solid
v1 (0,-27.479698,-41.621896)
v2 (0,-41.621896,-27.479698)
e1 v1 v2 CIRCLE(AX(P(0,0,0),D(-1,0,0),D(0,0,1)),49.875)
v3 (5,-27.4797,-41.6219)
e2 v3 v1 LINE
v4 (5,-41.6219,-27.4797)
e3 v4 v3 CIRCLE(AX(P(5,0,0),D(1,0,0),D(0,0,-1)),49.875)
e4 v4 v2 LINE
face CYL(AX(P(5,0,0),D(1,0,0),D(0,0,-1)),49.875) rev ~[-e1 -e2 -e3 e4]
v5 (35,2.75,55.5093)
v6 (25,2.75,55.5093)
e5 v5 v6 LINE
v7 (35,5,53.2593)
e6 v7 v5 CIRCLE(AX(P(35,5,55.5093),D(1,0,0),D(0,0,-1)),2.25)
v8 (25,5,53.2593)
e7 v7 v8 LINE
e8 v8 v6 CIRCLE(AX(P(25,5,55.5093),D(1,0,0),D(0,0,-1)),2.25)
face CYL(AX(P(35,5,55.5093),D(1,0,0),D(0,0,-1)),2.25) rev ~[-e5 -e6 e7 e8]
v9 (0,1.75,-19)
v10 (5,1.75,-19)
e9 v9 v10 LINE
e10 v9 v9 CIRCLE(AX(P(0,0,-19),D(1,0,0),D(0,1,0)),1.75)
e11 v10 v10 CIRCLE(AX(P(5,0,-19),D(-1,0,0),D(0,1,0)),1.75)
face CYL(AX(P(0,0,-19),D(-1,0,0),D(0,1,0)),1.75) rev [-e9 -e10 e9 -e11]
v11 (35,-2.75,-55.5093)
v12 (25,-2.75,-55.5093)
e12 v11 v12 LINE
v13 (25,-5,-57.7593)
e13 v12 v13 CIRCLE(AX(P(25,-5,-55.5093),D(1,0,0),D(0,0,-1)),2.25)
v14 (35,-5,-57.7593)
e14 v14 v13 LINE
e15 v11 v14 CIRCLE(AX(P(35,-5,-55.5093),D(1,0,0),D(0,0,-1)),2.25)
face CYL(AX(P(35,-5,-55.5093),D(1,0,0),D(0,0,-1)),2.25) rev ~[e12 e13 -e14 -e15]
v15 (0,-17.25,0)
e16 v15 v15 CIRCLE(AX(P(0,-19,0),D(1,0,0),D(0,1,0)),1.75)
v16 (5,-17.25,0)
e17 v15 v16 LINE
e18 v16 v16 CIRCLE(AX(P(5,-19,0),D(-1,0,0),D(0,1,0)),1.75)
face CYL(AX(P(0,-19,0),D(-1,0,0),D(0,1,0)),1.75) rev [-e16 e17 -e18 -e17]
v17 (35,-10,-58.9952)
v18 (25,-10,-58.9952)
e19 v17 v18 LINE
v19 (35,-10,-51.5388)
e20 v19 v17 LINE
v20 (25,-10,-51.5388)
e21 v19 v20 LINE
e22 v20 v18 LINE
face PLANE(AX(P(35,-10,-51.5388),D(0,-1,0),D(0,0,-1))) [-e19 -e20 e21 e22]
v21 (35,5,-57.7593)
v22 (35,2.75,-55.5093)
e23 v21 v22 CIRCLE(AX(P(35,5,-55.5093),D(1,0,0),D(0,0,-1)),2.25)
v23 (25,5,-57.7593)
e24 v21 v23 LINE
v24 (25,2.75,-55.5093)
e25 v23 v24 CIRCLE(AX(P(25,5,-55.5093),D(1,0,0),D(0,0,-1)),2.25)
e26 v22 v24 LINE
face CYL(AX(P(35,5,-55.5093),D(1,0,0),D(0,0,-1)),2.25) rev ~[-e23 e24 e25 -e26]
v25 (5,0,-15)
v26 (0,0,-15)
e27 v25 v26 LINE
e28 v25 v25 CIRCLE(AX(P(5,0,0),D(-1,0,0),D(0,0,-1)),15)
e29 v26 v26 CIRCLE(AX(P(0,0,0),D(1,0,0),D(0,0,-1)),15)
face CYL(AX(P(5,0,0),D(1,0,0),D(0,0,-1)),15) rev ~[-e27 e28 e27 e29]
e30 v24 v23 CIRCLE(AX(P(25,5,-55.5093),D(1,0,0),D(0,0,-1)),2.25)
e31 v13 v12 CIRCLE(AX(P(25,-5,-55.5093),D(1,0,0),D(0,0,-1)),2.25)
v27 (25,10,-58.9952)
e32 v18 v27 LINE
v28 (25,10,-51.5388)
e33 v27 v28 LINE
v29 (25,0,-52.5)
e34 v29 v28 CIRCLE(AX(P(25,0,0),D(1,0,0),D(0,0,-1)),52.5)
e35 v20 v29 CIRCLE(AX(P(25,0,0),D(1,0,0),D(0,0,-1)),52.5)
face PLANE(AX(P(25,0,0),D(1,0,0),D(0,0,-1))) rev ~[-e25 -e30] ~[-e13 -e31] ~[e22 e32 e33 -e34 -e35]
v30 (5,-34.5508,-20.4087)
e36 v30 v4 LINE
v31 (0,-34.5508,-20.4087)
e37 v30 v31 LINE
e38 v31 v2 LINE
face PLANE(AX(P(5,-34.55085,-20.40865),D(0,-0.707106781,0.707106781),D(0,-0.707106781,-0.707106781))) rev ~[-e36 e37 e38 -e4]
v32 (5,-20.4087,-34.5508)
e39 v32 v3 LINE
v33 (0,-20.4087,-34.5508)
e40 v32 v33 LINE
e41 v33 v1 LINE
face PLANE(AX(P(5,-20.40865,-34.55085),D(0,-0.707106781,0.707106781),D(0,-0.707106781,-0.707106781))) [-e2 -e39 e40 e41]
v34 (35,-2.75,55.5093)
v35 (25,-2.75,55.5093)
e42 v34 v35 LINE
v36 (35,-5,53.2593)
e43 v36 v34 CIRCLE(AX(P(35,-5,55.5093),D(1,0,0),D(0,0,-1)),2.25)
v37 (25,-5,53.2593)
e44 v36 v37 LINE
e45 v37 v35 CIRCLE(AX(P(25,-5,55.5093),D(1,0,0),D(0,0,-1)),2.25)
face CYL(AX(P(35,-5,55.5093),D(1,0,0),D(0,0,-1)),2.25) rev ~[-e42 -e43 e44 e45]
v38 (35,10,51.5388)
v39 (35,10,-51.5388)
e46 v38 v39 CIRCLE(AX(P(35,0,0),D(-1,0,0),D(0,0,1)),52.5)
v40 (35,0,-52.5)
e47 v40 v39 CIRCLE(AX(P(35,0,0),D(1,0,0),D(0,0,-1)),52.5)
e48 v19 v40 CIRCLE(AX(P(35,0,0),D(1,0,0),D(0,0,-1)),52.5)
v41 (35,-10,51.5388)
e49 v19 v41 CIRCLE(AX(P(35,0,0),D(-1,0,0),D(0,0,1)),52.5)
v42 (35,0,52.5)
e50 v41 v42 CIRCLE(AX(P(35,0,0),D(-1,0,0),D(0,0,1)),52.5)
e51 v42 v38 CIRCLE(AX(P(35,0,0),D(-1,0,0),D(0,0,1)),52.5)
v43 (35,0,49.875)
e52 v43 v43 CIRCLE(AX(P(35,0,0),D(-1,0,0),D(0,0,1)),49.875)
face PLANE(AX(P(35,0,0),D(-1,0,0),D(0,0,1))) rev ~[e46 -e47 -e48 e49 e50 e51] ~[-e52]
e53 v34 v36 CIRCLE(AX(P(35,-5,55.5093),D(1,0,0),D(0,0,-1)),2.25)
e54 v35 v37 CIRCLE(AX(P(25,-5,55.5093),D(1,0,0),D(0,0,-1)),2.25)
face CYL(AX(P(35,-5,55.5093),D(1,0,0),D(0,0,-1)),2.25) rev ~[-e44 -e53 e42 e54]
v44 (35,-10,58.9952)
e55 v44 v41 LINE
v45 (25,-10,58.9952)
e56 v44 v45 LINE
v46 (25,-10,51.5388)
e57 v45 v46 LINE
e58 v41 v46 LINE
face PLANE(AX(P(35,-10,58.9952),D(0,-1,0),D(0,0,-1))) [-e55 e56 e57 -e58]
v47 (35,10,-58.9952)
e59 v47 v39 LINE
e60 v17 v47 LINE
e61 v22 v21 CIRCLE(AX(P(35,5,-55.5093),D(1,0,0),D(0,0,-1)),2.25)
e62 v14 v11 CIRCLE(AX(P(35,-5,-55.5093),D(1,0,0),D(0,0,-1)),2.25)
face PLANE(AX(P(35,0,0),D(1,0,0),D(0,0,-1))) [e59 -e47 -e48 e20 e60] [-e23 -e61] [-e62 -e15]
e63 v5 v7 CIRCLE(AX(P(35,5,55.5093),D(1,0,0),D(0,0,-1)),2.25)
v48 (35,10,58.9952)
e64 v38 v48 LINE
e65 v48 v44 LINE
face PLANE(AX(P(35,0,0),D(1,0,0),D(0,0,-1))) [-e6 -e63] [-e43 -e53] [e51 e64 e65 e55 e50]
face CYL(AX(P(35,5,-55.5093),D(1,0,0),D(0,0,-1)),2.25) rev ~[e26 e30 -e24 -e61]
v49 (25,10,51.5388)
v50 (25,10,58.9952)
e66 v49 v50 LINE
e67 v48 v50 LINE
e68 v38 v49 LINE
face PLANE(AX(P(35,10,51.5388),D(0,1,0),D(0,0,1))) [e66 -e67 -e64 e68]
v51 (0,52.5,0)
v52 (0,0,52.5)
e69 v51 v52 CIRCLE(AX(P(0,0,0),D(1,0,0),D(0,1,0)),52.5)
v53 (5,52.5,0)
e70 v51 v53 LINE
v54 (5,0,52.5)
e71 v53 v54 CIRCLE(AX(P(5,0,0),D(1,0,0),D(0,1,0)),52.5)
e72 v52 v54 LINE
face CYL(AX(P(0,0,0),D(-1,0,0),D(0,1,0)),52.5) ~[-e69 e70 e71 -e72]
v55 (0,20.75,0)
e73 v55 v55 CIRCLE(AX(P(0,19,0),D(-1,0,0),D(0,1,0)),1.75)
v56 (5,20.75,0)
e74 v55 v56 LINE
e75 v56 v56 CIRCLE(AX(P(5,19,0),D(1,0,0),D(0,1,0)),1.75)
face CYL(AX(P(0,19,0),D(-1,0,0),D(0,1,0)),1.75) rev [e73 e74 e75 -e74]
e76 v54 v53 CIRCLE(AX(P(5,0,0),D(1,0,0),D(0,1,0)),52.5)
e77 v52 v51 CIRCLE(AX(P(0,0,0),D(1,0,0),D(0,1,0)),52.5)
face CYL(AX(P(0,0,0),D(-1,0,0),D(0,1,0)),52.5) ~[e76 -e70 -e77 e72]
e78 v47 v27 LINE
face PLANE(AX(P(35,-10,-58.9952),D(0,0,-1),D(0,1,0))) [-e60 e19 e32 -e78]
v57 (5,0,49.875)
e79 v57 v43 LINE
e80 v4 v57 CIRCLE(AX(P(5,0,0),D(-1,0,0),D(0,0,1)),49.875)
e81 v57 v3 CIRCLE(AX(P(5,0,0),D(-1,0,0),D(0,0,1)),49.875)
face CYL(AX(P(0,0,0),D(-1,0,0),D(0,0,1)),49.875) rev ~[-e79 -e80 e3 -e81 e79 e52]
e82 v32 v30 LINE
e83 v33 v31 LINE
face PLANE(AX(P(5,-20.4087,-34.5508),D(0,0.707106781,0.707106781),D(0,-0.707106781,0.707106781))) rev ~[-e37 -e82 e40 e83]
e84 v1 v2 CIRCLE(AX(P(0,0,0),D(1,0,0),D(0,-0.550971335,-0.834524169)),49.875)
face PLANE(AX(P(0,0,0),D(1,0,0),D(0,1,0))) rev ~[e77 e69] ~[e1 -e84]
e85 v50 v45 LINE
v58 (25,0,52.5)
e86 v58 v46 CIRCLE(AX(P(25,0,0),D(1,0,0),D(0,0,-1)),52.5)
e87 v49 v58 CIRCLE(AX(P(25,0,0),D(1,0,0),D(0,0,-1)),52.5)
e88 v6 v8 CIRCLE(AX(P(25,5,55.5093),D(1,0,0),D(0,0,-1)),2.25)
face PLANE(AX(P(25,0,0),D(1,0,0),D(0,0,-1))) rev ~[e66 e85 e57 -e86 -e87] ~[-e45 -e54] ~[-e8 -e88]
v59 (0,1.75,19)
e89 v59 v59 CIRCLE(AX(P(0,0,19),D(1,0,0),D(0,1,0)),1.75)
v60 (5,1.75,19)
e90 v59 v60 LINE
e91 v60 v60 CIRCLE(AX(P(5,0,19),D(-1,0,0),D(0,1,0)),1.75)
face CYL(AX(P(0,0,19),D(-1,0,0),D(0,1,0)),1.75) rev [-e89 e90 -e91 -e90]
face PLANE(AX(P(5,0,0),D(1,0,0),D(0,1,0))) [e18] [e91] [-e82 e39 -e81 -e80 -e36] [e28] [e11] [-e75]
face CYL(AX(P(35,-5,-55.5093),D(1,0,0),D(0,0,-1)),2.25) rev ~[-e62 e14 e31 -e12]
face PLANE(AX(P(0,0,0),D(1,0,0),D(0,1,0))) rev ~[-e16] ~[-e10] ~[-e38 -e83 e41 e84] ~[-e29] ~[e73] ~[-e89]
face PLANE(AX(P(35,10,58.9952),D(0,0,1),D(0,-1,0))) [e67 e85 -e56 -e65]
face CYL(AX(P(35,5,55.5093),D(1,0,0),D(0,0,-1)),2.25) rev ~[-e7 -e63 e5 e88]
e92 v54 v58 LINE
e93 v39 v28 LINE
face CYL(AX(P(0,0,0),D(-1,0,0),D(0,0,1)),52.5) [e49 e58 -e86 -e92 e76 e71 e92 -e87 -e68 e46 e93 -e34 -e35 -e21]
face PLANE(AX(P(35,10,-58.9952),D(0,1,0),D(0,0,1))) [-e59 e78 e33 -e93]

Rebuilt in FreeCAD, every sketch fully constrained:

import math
import FreeCAD as App
import Part
import Sketcher
from FreeCAD import Vector
Q = App.Units.Quantity

doc = App.newDocument("Part")
body = doc.addObject("PartDesign::Body", "Body")

# Sketch on YZ plane
sketch1 = body.newObject("Sketcher::SketchObject", "Sketch")
sketch1.AttachmentSupport = (doc.getObject("YZ_Plane"), [""])
sketch1.MapMode = "FlatFace"
sketch1.addGeometry([
    Part.Circle(Vector(0, 0, 0), Vector(0, 0, 1), 52.5),  # 0
    Part.Circle(Vector(19, 0, 0), Vector(0, 0, 1), 1.8),  # 1
    Part.Circle(Vector(0, -19, 0), Vector(0, 0, 1), 1.8),  # 2
    Part.Circle(Vector(-19, 0, 0), Vector(0, 0, 1), 1.8),  # 3
    Part.Circle(Vector(0, 19, 0), Vector(0, 0, 1), 1.8),  # 4
], False)
sketch1.addConstraint([
    Sketcher.Constraint("Coincident", 0, 3, -1, 1),
    Sketcher.Constraint("Equal", 1, 2),
    Sketcher.Constraint("Equal", 2, 3),
    Sketcher.Constraint("Equal", 3, 4),
    Sketcher.Constraint("Symmetric", 1, 3, 3, 3, -1, 1),
    Sketcher.Constraint("Symmetric", 2, 3, 4, 3, -1, 1),
    Sketcher.Constraint("PointOnObject", 1, 3, -1),
    Sketcher.Constraint("PointOnObject", 2, 3, -2),
    Sketcher.Constraint("Diameter", 0, Q("105 mm")),
    Sketcher.Constraint("Diameter", 1, Q("3.5 mm")),
    Sketcher.Constraint("DistanceX", 3, 3, 1, 3, Q("38 mm")),
    Sketcher.Constraint("DistanceY", 2, 3, 4, 3, Q("38 mm")),
])
pad1 = body.newObject("PartDesign::Pad", "Pad")
pad1.Profile = sketch1
pad1.Length = 5

# Sketch on YZ plane
sketch2 = body.newObject("Sketcher::SketchObject", "Sketch001")
sketch2.AttachmentSupport = (doc.getObject("YZ_Plane"), [""])
sketch2.MapMode = "FlatFace"
sketch2.addGeometry([
    Part.Circle(Vector(0, 0, 0), Vector(0, 0, 1), 52),
    Part.Circle(Vector(0, 0, 0), Vector(0, 0, 1), 50),
], False)
sketch2.addConstraint([
    Sketcher.Constraint("Coincident", 0, 3, -1, 1),
    Sketcher.Constraint("Coincident", 1, 3, -1, 1),
    Sketcher.Constraint("Diameter", 0, Q("105 mm")),
    Sketcher.Constraint("Diameter", 1, Q("99.75 mm")),
])
pad2 = body.newObject("PartDesign::Pad", "Pad001")
pad2.Profile = sketch2
pad2.Length = 35

# Sketch on YZ plane
sketch3 = body.newObject("Sketcher::SketchObject", "Sketch002")
sketch3.AttachmentSupport = (doc.getObject("YZ_Plane"), [""])
sketch3.MapMode = "FlatFace"
sketch3.AttachmentOffset = App.Placement(Vector(0, 0, 35), App.Rotation())
sketch3.addGeometry([
    Part.ArcOfCircle(Part.Circle(Vector(0, 0, 0), Vector(0, 0, 1), 52.5), math.radians(-90), math.radians(-79.02)),  # 0
    Part.ArcOfCircle(Part.Circle(Vector(0, 0, 0), Vector(0, 0, 1), 52.5), math.radians(-100.98), math.radians(-90)),  # 1
    Part.LineSegment(Vector(-10, -51.5, 0), Vector(-10, -59, 0)),  # 2
    Part.LineSegment(Vector(-10, -59, 0), Vector(10, -59, 0)),  # 3
    Part.LineSegment(Vector(10, -59, 0), Vector(10, -51.5, 0)),  # 4
    Part.Circle(Vector(-5, -55.5, 0), Vector(0, 0, 1), 2.2),  # 5
    Part.Circle(Vector(5, -55.5, 0), Vector(0, 0, 1), 2.2),  # 6
    Part.ArcOfCircle(Part.Circle(Vector(0, 0, 0), Vector(0, 0, 1), 52.5), math.radians(79.02), math.radians(90)),  # 7
    Part.LineSegment(Vector(10, 51.5, 0), Vector(10, 59, 0)),  # 8
    Part.LineSegment(Vector(10, 59, 0), Vector(-10, 59, 0)),  # 9
    Part.LineSegment(Vector(-10, 59, 0), Vector(-10, 51.5, 0)),  # 10
    Part.ArcOfCircle(Part.Circle(Vector(0, 0, 0), Vector(0, 0, 1), 52.5), math.radians(90), math.radians(100.98)),  # 11
    Part.Circle(Vector(-5, 55.5, 0), Vector(0, 0, 1), 2.2),  # 12
    Part.Circle(Vector(5, 55.5, 0), Vector(0, 0, 1), 2.2),  # 13
], False)
sketch3.addConstraint([
    Sketcher.Constraint("Tangent", 0, 1, 1, 2),
    Sketcher.Constraint("Coincident", 1, 1, 2, 1),
    Sketcher.Constraint("Coincident", 2, 2, 3, 1),
    Sketcher.Constraint("Coincident", 3, 2, 4, 1),
    Sketcher.Constraint("Coincident", 4, 2, 0, 2),
    Sketcher.Constraint("Coincident", 7, 1, 8, 1),
    Sketcher.Constraint("Coincident", 8, 2, 9, 1),
    Sketcher.Constraint("Coincident", 9, 2, 10, 1),
    Sketcher.Constraint("Coincident", 10, 2, 11, 2),
    Sketcher.Constraint("Tangent", 11, 1, 7, 2),
    Sketcher.Constraint("Vertical", 2),
    Sketcher.Constraint("Horizontal", 3),
    Sketcher.Constraint("Vertical", 4),
    Sketcher.Constraint("Vertical", 8),
    Sketcher.Constraint("Horizontal", 9),
    Sketcher.Constraint("Vertical", 10),
    Sketcher.Constraint("Coincident", 0, 3, -1, 1),
    Sketcher.Constraint("Coincident", 7, 3, -1, 1),
    Sketcher.Constraint("Equal", 0, 1),
    Sketcher.Constraint("Equal", 5, 6),
    Sketcher.Constraint("Equal", 1, 7),
    Sketcher.Constraint("Equal", 7, 11),
    Sketcher.Constraint("Equal", 6, 12),
    Sketcher.Constraint("Equal", 12, 13),
    Sketcher.Constraint("Symmetric", 6, 3, 12, 3, -1, 1),
    Sketcher.Constraint("Symmetric", 5, 3, 13, 3, -1, 1),
    Sketcher.Constraint("Symmetric", 2, 2, 8, 2, -1, 1),
    Sketcher.Constraint("Symmetric", 5, 3, 6, 3, -2),
    Sketcher.Constraint("PointOnObject", 0, 1, -2),
    Sketcher.Constraint("PointOnObject", 11, 1, -2),
    Sketcher.Constraint("Horizontal", 1, 1, 4, 2),
    Sketcher.Constraint("Horizontal", 7, 1, 10, 2),
    Sketcher.Constraint("Diameter", 5, Q("4.5 mm")),
    Sketcher.Constraint("Radius", 0, Q("52.5 mm")),
    Sketcher.Constraint("DistanceX", 3, 1, 3, 2, Q("20 mm")),
    Sketcher.Constraint("DistanceX", 5, 3, -1, 1, Q("5 mm")),
    Sketcher.Constraint("DistanceY", 2, 2, 2, 1, Q("7.4564 mm")),
    Sketcher.Constraint("DistanceY", 2, 2, 5, 3, Q("3.486 mm")),
])
pad3 = body.newObject("PartDesign::Pad", "Pad002")
pad3.Profile = sketch3
pad3.Length = 10
pad3.Reversed = True

# Sketch on YZ plane
sketch4 = body.newObject("Sketcher::SketchObject", "Sketch003")
sketch4.AttachmentSupport = (doc.getObject("YZ_Plane"), [""])
sketch4.MapMode = "FlatFace"
sketch4.AttachmentOffset = App.Placement(Vector(0, 0, 5), App.Rotation())
sketch4.addGeometry([
    Part.Circle(Vector(0, 0, 0), Vector(0, 0, 1), 15),  # 0
    Part.LineSegment(Vector(-20, -35, 0), Vector(-35, -20, 0)),  # 1
    Part.LineSegment(Vector(-35, -20, 0), Vector(-42, -27, 0)),  # 2
    Part.ArcOfCircle(Part.Circle(Vector(0, 0, 0), Vector(0, 0, 1), 50), math.radians(-147), math.radians(-123)),  # 3
    Part.LineSegment(Vector(-27, -42, 0), Vector(-20, -35, 0)),  # 4
], False)
sketch4.addConstraint([
    Sketcher.Constraint("Coincident", 1, 2, 2, 1),
    Sketcher.Constraint("Coincident", 2, 2, 3, 1),
    Sketcher.Constraint("Coincident", 3, 2, 4, 1),
    Sketcher.Constraint("Coincident", 4, 2, 1, 1),
    Sketcher.Constraint("Coincident", 0, 3, -1, 1),
    Sketcher.Constraint("Coincident", 3, 3, -1, 1),
    Sketcher.Constraint("Perpendicular", 1, 2),
    Sketcher.Constraint("Parallel", 2, 4),
    Sketcher.Constraint("Equal", 2, 4),
    Sketcher.Constraint("Diameter", 0, Q("30 mm")),
    Sketcher.Constraint("Angle", 4, Q("45 deg")),
    Sketcher.Constraint("Distance", 2, Q("10 mm")),
    Sketcher.Constraint("Distance", 1, Q("20 mm")),
    Sketcher.Constraint("Radius", 3, Q("49.875 mm")),
])
pocket1 = body.newObject("PartDesign::Pocket", "Pocket")
pocket1.Profile = sketch4
pocket1.Length = 10

doc.recompute()
